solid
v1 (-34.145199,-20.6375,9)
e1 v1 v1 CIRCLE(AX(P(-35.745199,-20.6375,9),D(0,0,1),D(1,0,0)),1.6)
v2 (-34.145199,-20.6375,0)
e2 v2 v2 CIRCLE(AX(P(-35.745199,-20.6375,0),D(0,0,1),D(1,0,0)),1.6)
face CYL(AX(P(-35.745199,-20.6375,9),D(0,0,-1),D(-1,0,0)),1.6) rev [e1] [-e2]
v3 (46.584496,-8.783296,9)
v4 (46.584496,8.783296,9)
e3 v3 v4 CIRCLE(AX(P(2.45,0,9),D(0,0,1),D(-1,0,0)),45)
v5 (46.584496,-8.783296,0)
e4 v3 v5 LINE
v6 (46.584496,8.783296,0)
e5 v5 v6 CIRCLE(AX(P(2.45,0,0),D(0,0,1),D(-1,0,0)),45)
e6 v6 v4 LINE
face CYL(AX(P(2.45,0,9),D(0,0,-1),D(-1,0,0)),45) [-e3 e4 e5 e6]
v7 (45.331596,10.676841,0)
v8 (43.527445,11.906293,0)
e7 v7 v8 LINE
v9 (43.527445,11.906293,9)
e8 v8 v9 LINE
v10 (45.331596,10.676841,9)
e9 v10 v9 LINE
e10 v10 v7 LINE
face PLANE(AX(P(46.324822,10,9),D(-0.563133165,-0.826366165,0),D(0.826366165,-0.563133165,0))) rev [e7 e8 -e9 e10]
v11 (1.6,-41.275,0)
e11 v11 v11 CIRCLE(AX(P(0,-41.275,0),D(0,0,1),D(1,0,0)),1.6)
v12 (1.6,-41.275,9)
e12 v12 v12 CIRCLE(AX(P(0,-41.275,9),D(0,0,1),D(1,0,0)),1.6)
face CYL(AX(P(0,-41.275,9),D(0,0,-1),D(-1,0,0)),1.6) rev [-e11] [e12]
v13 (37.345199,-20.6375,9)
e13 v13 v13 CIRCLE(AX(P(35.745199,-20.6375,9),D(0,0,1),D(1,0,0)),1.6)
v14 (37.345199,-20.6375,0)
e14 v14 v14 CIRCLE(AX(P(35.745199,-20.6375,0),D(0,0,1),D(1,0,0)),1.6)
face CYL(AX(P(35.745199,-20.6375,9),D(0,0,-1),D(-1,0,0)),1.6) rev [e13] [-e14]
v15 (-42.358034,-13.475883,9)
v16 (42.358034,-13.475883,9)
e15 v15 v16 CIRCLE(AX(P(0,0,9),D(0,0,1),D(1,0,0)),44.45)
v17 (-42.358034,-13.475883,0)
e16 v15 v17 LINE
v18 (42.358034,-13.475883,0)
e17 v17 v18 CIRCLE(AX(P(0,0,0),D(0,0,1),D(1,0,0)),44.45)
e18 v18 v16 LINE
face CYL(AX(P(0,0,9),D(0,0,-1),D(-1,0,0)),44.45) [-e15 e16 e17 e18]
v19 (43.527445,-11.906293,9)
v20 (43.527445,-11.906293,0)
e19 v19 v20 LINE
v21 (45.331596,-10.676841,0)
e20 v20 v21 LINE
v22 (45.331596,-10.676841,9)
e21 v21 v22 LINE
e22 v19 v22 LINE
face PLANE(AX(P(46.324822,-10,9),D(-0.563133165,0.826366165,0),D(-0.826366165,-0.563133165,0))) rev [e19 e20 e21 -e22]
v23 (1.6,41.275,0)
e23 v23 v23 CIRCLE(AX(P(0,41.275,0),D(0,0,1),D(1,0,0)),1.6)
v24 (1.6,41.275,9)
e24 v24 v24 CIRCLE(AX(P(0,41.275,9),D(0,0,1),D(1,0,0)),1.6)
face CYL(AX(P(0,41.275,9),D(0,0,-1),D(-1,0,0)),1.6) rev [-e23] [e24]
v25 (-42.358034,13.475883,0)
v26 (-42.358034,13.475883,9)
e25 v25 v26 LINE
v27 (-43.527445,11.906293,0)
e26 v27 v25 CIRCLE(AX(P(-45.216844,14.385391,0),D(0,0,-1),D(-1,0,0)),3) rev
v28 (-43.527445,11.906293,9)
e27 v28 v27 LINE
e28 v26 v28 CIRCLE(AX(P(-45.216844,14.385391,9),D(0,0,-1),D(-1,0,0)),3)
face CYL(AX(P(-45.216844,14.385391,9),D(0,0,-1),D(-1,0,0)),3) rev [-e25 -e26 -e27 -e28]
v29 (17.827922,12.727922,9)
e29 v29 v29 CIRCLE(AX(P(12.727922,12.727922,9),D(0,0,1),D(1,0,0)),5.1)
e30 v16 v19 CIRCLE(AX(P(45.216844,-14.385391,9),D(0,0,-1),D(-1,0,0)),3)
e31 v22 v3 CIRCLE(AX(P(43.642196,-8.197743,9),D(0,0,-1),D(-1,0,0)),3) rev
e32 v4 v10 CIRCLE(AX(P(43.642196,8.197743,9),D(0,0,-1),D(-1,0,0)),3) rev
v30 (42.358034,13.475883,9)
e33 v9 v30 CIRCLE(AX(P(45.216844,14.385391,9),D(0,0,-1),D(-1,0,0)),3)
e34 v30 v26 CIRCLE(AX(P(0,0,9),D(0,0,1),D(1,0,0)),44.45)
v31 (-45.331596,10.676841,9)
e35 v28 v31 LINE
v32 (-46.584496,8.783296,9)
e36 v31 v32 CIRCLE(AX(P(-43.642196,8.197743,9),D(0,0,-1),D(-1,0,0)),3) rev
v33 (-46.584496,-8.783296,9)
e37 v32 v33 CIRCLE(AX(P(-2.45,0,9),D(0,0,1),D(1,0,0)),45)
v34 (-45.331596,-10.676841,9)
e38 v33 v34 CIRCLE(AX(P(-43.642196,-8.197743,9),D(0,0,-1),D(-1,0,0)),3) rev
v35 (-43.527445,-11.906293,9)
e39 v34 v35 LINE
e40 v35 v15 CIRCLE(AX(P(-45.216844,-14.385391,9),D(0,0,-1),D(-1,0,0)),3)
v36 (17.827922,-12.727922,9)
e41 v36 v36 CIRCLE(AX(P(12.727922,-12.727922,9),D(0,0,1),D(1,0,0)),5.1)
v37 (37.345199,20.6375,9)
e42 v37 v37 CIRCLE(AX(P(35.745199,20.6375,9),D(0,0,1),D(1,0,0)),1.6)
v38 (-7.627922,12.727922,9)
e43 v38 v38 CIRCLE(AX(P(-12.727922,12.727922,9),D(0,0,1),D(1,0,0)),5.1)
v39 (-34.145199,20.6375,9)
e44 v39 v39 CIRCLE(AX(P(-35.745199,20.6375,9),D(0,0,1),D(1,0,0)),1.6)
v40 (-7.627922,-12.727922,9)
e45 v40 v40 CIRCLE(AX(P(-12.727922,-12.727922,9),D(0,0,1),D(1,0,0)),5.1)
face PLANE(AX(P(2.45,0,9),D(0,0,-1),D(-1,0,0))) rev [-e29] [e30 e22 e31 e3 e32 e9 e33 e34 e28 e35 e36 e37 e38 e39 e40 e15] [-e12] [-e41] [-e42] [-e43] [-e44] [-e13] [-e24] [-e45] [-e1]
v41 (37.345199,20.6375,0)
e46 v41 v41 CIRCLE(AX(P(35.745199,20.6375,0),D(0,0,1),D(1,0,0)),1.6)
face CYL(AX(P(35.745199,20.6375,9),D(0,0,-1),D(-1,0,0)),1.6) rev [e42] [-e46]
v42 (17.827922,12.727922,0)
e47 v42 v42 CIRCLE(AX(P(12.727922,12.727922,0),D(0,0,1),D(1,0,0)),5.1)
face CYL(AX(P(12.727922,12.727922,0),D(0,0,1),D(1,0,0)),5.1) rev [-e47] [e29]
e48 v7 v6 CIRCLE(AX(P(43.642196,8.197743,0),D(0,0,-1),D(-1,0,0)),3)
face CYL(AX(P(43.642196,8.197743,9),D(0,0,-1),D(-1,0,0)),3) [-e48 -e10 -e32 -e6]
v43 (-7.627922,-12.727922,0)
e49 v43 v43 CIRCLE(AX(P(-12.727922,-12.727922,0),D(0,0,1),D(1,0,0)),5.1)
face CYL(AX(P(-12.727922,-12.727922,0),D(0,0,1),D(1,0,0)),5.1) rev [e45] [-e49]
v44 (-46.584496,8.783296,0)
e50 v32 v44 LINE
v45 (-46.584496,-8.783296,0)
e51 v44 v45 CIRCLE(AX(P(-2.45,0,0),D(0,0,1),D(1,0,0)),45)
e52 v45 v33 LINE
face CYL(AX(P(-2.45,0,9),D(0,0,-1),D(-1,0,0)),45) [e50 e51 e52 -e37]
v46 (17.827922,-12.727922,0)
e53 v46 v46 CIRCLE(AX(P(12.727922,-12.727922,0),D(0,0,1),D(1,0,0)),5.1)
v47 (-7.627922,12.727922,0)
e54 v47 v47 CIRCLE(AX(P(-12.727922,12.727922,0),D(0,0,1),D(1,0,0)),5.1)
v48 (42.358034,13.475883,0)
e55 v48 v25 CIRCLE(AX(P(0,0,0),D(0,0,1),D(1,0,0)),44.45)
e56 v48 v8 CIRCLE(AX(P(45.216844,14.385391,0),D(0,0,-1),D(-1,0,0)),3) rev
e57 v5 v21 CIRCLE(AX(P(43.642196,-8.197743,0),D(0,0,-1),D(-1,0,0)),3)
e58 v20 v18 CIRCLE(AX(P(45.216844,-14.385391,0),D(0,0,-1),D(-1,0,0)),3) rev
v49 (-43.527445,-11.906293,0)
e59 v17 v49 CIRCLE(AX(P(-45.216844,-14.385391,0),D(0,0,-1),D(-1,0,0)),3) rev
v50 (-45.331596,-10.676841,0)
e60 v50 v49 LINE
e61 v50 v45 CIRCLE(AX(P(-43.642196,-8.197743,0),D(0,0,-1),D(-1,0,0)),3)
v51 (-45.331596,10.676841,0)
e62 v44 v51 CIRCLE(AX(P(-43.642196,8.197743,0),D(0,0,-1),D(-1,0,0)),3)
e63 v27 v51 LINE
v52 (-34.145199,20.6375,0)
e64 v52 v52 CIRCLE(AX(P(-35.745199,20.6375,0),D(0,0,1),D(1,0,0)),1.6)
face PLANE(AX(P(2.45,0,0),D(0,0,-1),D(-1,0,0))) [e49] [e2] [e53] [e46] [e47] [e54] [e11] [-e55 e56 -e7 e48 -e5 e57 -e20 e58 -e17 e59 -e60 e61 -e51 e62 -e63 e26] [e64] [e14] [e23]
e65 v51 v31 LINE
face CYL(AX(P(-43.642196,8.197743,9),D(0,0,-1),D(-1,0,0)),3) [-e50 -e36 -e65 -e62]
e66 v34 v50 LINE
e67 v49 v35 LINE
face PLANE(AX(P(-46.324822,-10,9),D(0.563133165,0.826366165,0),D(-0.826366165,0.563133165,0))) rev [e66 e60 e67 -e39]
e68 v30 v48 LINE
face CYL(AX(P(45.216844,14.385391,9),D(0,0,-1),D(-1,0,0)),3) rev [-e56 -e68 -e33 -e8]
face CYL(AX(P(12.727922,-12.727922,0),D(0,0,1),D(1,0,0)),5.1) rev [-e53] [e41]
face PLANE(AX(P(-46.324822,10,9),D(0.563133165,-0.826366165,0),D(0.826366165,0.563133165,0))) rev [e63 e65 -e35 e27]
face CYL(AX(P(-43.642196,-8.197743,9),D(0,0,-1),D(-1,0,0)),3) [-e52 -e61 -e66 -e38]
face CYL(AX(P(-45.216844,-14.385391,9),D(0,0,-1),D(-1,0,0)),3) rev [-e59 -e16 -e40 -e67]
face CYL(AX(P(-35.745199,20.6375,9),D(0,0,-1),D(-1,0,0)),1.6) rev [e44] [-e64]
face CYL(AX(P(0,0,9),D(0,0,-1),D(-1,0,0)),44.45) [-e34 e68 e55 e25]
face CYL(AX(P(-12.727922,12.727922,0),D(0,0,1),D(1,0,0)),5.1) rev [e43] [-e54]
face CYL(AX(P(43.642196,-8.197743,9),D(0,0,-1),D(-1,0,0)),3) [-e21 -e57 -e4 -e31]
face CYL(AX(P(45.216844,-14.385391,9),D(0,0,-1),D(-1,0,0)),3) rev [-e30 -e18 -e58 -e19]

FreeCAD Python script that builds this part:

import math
import FreeCAD as App
import Part
import Sketcher

V = App.Vector
Q = App.Units.Quantity


def edges_at(feature, points):
    """Names of the edges that pass closest to the given points."""
    edges = feature.Shape.Edges
    near = lambda p: min(range(len(edges)), key=lambda i: edges[i].distToShape(Part.Vertex(*p))[0])
    return sorted({f"Edge{near(p) + 1}" for p in points})

doc = App.newDocument("Part")
body = doc.addObject("PartDesign::Body", "Body")

# Sketch on XY plane
sketch1 = body.newObject("Sketcher::SketchObject", "Sketch")
sketch1.AttachmentSupport = (doc.getObject("XY_Plane"), [""])
sketch1.MapMode = "FlatFace"
sketch1.addGeometry(Part.LineSegment(V(-42.7, 12.5, 0), V(-46.3, 10, 0)), False)
sketch1.addGeometry(Part.ArcOfCircle(Part.Circle(V(-2.4, 0, 0), V(0, 0, 1), 45), math.radians(167), math.radians(193)), False)
sketch1.addGeometry(Part.LineSegment(V(-46.3, -10, 0), V(-42.7, -12.5, 0)), False)
sketch1.addGeometry(Part.ArcOfCircle(Part.Circle(V(0, 0, 0), V(0, 0, 1), 44.5), math.radians(-164), math.radians(-16)), False)
sketch1.addGeometry(Part.LineSegment(V(42.7, -12.5, 0), V(46.3, -10, 0)), False)
sketch1.addGeometry(Part.ArcOfCircle(Part.Circle(V(2.4, 0, 0), V(0, 0, 1), 45), math.radians(-13), math.radians(13)), False)
sketch1.addGeometry(Part.LineSegment(V(46.3, 10, 0), V(42.7, 12.5, 0)), False)
sketch1.addGeometry(Part.ArcOfCircle(Part.Circle(V(0, 0, 0), V(0, 0, 1), 44.5), math.radians(16), math.radians(164)), False)
sketch1.addGeometry(Part.Circle(V(35.7, -20.6, 0), V(0, 0, 1), 1.6), False)
sketch1.addGeometry(Part.Circle(V(0, -41.3, 0), V(0, 0, 1), 1.6), False)
sketch1.addGeometry(Part.Circle(V(-35.7, -20.6, 0), V(0, 0, 1), 1.6), False)
sketch1.addGeometry(Part.Circle(V(35.7, 20.6, 0), V(0, 0, 1), 1.6), False)
sketch1.addGeometry(Part.Circle(V(-35.7, 20.6, 0), V(0, 0, 1), 1.6), False)
sketch1.addGeometry(Part.Circle(V(0, 41.3, 0), V(0, 0, 1), 1.6), False)
sketch1.addConstraint(Sketcher.Constraint("Coincident", 0, 2, 1, 1))
sketch1.addConstraint(Sketcher.Constraint("Coincident", 1, 2, 2, 1))
sketch1.addConstraint(Sketcher.Constraint("Coincident", 2, 2, 3, 1))
sketch1.addConstraint(Sketcher.Constraint("Coincident", 3, 2, 4, 1))
sketch1.addConstraint(Sketcher.Constraint("Coincident", 4, 2, 5, 1))
sketch1.addConstraint(Sketcher.Constraint("Coincident", 5, 2, 6, 1))
sketch1.addConstraint(Sketcher.Constraint("Coincident", 6, 2, 7, 1))
sketch1.addConstraint(Sketcher.Constraint("Coincident", 7, 2, 0, 1))
sketch1.addConstraint(Sketcher.Constraint("Coincident", 3, 3, -1, 1))
sketch1.addConstraint(Sketcher.Constraint("Coincident", 7, 3, -1, 1))
sketch1.addConstraint(Sketcher.Constraint("Equal", 1, 5))
sketch1.addConstraint(Sketcher.Constraint("Equal", 3, 7))
sketch1.addConstraint(Sketcher.Constraint("Equal", 8, 9))
sketch1.addConstraint(Sketcher.Constraint("Equal", 9, 10))
sketch1.addConstraint(Sketcher.Constraint("Equal", 10, 11))
sketch1.addConstraint(Sketcher.Constraint("Equal", 11, 12))
sketch1.addConstraint(Sketcher.Constraint("Equal", 12, 13))
sketch1.addConstraint(Sketcher.Constraint("Symmetric", 1, 3, 5, 3, -1, 1))
sketch1.addConstraint(Sketcher.Constraint("Symmetric", 10, 3, 11, 3, -1, 1))
sketch1.addConstraint(Sketcher.Constraint("Symmetric", 8, 3, 12, 3, -1, 1))
sketch1.addConstraint(Sketcher.Constraint("Symmetric", 9, 3, 13, 3, -1, 1))
sketch1.addConstraint(Sketcher.Constraint("Symmetric", 8, 3, 10, 3, -2))
sketch1.addConstraint(Sketcher.Constraint("Symmetric", 1, 2, 4, 2, -2))
sketch1.addConstraint(Sketcher.Constraint("PointOnObject", 9, 3, -2))
sketch1.addConstraint(Sketcher.Constraint("Parallel", 0, 4))
sketch1.addConstraint(Sketcher.Constraint("Parallel", 2, 6))
sketch1.addConstraint(Sketcher.Constraint("Horizontal", 2, 2, 3, 2))
sketch1.addConstraint(Sketcher.Constraint("Horizontal", 0, 2, 5, 2))
sketch1.addConstraint(Sketcher.Constraint("Vertical", 0, 2, 1, 2))
sketch1.addConstraint(Sketcher.Constraint("Radius", 1, Q("45 mm")))
sketch1.addConstraint(Sketcher.Constraint("Diameter", 8, Q("3.2 mm")))
sketch1.addConstraint(Sketcher.Constraint("Radius", 3, Q("44.45 mm")))
sketch1.addConstraint(Sketcher.Constraint("DistanceY", -1, 1, 0, 2, Q("10 mm")))
sketch1.addConstraint(Sketcher.Constraint("DistanceY", 3, 2, 6, 2, Q("25 mm")))
sketch1.addConstraint(Sketcher.Constraint("DistanceX", 1, 3, 5, 3, Q("4.9 mm")))
sketch1.addConstraint(Sketcher.Constraint("DistanceY", 9, 3, -1, 1, Q("41.275 mm")))
sketch1.addConstraint(Sketcher.Constraint("DistanceY", 8, 3, 11, 3, Q("41.275 mm")))
sketch1.addConstraint(Sketcher.Constraint("DistanceX", -1, 1, 8, 3, Q("35.745199 mm")))
pad1 = body.newObject("PartDesign::Pad", "Pad")
pad1.Profile = sketch1
pad1.Length = 9
doc.recompute()

fillet = body.newObject("PartDesign::Fillet", "Fillet")
fillet.Base = (pad1, edges_at(pad1, [
    (46.325, -10, 4.5),
    (42.656, -12.5, 4.5),
    (-42.656, -12.5, 4.5),
    (-46.325, -10, 4.5),
    (-46.325, 10, 4.5),
    (-42.656, 12.5, 4.5),
    (42.656, 12.5, 4.5),
    (46.325, 10, 4.5),
]))
fillet.Radius = 3

# Sketch on XY plane
sketch2 = body.newObject("Sketcher::SketchObject", "Sketch001")
sketch2.AttachmentSupport = (doc.getObject("XY_Plane"), [""])
sketch2.MapMode = "FlatFace"
sketch2.AttachmentOffset = App.Placement(V(0, 0, 9), App.Rotation())
sketch2.addGeometry(Part.Circle(V(13, 13, 0), V(0, 0, 1), 5), False)
sketch2.addGeometry(Part.Circle(V(13, -13, 0), V(0, 0, 1), 5), False)
sketch2.addGeometry(Part.Circle(V(-13, -13, 0), V(0, 0, 1), 5), False)
sketch2.addGeometry(Part.Circle(V(-13, 13, 0), V(0, 0, 1), 5), False)
sketch2.addConstraint(Sketcher.Constraint("Equal", 0, 1))
sketch2.addConstraint(Sketcher.Constraint("Equal", 1, 2))
sketch2.addConstraint(Sketcher.Constraint("Equal", 2, 3))
sketch2.addConstraint(Sketcher.Constraint("Symmetric", 0, 3, 2, 3, -1, 1))
sketch2.addConstraint(Sketcher.Constraint("Symmetric", 1, 3, 3, 3, -1, 1))
sketch2.addConstraint(Sketcher.Constraint("Symmetric", 1, 3, 2, 3, -2))
sketch2.addConstraint(Sketcher.Constraint("Diameter", 0, Q("10.2 mm")))
sketch2.addConstraint(Sketcher.Constraint("DistanceX", -1, 1, 0, 3, Q("12.727922 mm")))
sketch2.addConstraint(Sketcher.Constraint("DistanceY", -1, 1, 0, 3, Q("12.727922 mm")))
pocket1 = body.newObject("PartDesign::Pocket", "Pocket")
pocket1.Profile = sketch2
pocket1.Type = "ThroughAll"

doc.recompute()
